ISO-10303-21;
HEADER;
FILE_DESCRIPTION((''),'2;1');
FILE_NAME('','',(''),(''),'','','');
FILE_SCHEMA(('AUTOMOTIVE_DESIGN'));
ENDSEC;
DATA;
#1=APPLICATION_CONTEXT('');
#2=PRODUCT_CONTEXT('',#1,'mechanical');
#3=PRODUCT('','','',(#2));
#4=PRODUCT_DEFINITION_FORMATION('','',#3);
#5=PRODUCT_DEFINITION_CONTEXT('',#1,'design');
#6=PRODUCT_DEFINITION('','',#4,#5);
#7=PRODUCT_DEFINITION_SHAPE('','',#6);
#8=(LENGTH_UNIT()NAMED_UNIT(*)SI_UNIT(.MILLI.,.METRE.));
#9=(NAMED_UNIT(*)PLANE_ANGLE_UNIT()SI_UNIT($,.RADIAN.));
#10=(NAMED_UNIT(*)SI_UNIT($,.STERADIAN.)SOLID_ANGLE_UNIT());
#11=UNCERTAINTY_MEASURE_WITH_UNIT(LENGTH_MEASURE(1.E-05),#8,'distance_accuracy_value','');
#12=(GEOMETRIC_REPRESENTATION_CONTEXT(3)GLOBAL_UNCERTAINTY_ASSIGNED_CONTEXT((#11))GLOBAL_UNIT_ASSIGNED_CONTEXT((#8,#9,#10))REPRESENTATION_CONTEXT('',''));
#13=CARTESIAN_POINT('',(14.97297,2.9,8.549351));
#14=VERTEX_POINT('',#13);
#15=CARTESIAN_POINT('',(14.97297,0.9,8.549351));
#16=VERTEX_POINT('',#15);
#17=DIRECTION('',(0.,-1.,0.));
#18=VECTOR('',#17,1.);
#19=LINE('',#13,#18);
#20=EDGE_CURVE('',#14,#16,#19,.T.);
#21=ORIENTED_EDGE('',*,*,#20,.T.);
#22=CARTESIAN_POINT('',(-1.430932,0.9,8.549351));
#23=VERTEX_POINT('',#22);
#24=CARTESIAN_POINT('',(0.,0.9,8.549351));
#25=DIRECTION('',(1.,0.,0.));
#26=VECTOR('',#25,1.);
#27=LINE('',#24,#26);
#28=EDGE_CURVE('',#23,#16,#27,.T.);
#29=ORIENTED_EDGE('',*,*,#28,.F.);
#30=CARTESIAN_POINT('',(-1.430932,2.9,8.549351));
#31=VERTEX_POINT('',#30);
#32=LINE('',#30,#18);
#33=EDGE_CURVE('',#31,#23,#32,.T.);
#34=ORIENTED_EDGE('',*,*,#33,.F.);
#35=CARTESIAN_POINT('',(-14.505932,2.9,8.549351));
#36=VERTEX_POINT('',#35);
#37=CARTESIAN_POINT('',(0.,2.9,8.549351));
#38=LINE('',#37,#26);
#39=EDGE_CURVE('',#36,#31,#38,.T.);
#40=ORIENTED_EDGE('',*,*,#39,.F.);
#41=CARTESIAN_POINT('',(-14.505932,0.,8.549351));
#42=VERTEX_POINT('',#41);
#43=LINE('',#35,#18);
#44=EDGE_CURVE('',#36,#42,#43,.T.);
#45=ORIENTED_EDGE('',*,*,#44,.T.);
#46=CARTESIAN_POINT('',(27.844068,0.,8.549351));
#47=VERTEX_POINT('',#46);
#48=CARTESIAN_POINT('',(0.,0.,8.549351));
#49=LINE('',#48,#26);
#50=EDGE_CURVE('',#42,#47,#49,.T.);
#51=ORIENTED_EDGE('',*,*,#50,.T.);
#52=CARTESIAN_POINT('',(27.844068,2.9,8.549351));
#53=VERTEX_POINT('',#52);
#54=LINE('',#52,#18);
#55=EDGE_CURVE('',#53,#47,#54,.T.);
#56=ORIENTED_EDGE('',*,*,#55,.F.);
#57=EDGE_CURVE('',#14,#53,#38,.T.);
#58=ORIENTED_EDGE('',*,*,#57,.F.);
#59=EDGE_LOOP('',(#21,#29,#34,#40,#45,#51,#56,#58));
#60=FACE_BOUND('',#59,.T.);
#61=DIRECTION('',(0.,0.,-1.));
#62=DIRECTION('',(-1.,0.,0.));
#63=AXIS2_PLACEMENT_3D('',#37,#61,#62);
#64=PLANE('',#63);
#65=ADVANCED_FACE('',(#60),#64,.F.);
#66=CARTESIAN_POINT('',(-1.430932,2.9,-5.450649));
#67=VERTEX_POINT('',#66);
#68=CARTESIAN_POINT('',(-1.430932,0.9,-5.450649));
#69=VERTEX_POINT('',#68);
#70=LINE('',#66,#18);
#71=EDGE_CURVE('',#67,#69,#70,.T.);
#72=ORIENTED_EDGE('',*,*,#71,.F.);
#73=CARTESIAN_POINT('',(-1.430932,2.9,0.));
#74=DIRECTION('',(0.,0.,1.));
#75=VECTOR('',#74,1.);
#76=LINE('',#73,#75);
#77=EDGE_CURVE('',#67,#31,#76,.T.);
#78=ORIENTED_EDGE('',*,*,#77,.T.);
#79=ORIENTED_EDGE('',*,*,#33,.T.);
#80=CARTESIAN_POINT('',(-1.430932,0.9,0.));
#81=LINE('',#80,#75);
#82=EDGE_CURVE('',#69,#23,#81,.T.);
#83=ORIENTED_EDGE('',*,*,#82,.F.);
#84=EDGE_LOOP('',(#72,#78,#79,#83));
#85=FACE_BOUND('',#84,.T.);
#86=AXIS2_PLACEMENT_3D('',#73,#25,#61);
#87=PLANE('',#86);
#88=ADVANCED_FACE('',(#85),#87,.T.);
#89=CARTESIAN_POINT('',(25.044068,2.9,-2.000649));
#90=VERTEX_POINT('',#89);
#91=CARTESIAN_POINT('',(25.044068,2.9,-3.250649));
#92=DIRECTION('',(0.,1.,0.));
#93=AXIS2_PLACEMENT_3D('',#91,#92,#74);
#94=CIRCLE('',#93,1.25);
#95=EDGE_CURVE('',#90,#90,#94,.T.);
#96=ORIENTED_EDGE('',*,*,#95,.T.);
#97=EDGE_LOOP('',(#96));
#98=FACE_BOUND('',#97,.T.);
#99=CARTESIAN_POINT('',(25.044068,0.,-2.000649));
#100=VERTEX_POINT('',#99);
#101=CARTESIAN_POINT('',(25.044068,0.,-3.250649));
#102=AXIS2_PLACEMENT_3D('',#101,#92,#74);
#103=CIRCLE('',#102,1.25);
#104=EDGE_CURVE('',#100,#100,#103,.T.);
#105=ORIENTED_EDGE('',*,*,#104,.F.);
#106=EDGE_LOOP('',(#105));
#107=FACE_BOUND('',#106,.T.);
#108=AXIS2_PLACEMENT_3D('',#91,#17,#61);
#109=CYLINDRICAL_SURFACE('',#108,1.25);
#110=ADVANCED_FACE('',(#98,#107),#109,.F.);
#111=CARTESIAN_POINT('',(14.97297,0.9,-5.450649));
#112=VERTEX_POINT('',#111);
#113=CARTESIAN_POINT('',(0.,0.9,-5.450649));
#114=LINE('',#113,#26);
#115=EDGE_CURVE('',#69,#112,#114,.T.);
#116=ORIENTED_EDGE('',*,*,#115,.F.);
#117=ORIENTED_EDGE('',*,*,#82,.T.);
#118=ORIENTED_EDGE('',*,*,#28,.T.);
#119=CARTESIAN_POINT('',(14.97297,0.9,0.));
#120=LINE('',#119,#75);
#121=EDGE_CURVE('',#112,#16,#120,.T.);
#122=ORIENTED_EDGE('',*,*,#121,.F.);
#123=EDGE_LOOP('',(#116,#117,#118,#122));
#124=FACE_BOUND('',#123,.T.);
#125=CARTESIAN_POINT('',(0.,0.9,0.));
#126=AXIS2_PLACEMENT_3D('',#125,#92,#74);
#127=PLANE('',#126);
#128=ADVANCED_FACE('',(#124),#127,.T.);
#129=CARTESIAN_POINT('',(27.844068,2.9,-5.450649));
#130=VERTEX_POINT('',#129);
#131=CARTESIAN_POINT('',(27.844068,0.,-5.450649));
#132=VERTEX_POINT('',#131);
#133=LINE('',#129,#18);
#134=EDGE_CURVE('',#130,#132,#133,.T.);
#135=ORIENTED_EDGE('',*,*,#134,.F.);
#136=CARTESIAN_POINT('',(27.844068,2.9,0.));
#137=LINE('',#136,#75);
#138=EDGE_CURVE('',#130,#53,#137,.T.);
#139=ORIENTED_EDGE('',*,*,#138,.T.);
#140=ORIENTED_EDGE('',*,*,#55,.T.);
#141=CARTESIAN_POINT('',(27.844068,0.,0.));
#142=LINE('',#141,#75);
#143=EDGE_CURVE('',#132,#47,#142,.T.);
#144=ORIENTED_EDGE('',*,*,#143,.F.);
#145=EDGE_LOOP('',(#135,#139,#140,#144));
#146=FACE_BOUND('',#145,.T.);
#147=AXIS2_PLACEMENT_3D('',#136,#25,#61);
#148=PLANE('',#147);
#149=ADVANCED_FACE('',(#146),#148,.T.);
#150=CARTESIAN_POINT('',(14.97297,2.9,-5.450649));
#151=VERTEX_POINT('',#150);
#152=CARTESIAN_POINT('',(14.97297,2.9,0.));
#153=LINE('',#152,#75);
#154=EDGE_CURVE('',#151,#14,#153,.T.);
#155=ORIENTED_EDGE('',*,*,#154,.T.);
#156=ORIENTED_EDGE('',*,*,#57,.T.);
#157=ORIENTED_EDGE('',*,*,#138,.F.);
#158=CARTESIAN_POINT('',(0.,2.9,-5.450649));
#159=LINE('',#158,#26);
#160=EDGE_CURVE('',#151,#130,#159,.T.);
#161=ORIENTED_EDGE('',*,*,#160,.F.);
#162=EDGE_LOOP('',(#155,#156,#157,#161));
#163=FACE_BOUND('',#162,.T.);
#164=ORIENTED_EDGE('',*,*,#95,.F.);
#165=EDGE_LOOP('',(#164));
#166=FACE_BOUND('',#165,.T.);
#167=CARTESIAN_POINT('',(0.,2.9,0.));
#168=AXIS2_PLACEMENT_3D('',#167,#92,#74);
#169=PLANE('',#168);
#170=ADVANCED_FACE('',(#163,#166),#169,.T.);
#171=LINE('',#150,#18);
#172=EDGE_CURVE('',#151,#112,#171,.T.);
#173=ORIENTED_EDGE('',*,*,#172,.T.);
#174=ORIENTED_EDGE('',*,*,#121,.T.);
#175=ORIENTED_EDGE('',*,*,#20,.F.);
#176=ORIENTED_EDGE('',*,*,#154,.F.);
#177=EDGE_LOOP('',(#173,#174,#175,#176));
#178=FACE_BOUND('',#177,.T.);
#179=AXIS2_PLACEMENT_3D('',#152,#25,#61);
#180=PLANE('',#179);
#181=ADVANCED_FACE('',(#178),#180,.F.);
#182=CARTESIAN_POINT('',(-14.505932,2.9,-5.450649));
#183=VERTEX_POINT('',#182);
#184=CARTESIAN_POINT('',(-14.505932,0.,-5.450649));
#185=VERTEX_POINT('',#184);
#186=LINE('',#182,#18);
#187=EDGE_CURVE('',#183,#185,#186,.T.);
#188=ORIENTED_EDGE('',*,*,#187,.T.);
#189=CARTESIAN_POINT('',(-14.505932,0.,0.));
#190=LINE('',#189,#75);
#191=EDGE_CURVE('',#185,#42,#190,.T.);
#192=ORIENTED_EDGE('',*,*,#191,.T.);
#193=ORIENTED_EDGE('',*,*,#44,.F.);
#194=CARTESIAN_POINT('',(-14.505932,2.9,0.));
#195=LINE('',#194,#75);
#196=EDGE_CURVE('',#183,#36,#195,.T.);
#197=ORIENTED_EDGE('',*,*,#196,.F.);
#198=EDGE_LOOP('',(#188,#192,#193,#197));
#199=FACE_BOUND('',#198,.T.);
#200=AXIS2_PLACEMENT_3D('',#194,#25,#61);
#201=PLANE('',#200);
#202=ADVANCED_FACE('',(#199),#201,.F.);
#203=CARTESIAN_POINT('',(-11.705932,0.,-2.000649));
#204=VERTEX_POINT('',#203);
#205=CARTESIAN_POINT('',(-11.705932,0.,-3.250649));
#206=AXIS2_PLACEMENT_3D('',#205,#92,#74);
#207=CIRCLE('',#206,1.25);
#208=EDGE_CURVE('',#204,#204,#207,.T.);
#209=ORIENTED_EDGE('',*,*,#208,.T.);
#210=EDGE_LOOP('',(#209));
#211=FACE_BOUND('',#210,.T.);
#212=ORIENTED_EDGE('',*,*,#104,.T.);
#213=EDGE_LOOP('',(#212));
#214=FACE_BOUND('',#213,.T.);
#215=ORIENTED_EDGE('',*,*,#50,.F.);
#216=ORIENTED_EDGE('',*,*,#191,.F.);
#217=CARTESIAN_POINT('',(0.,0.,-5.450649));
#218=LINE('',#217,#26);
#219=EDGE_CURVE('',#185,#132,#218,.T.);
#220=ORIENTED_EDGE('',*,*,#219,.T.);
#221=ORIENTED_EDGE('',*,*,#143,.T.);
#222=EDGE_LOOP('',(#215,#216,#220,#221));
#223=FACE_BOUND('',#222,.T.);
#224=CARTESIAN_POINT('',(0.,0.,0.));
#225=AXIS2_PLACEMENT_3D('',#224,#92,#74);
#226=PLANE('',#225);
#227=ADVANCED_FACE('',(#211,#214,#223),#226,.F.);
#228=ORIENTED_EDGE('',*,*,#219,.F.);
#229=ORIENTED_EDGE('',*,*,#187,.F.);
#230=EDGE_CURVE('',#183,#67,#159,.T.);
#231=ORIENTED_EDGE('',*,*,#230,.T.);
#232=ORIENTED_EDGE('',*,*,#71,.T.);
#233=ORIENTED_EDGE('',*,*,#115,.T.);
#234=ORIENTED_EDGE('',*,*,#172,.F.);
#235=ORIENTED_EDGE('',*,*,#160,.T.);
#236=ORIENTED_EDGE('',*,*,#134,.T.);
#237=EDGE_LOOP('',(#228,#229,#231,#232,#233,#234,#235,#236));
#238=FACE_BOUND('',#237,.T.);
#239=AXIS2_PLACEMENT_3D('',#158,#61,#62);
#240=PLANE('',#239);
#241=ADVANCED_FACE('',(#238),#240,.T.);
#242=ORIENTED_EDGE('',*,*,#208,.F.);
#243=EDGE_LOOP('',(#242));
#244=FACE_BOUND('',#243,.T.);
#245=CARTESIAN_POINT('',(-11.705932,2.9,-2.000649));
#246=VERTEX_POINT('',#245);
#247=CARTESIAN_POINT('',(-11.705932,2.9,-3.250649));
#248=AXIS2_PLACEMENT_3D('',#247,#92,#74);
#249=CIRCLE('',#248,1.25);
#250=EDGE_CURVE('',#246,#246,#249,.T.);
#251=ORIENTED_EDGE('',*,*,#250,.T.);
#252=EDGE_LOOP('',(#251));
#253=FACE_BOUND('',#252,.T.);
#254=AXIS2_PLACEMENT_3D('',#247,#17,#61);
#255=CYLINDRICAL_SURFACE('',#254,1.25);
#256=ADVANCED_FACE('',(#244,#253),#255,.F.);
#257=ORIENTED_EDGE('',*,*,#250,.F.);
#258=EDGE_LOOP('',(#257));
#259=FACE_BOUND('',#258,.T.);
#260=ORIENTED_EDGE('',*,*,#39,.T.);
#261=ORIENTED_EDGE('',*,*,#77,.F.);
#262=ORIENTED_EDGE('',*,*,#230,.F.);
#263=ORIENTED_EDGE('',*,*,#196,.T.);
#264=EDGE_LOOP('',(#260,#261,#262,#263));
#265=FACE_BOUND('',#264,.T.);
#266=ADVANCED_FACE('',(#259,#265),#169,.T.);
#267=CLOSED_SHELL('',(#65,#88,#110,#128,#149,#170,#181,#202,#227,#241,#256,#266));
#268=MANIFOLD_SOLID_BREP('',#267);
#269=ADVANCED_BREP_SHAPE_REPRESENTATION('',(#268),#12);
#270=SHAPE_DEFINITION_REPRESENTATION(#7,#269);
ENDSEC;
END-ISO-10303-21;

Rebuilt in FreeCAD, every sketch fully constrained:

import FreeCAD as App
import Part
import Sketcher
from FreeCAD import Vector


def add_polygon(sketch, points):
    """Adds a closed chain of lines whose ends are joined by coincident constraints."""
    first, n = sketch.GeometryCount, len(points)
    for a, b in zip(points, points[1:] + points[:1]):
        sketch.addGeometry(Part.LineSegment(App.Vector(*a, 0), App.Vector(*b, 0)), False)
    for i in range(n):
        sketch.addConstraint(Sketcher.Constraint("Coincident", first + i, 2, first + (i + 1) % n, 1))

doc = App.newDocument("Part")
params = doc.addObject("Spreadsheet::Sheet", "Params")
for row, (alias, value) in enumerate([
    ("sketch1_diameter", "2.5 mm"),
    ("sketch1_height", "14 mm"),
    ("pad1_length", "2.9 mm"),
    ("sketch2_diameter", "2.5 mm"),
    ("sketch2_height", "14 mm"),
    ("pad2_length", "2.9 mm"),
    ("sketch3_height", "14 mm"),
    ("pad3_length", "0.9 mm"),
], start=1):
    params.set(f"A{row}", alias)
    params.set(f"B{row}", "=" + value)
    params.setAlias(f"B{row}", alias)

body = doc.addObject("PartDesign::Body", "Body")

# Sketch on XZ plane
sketch1 = body.newObject("Sketcher::SketchObject", "Sketch")
sketch1.AttachmentSupport = (doc.getObject("XZ_Plane"), [""])
sketch1.MapMode = "FlatFace"
add_polygon(sketch1, [(-14.5, -5.5), (-14.5, 8.5), (-1.4, 8.5), (-1.4, -5.5)])  # lines 0-3
sketch1.addGeometry(Part.Circle(Vector(-11.7, -3.3, 0), Vector(0, 0, 1), 1.2), False)  # 4
sketch1.addConstraint(Sketcher.Constraint("Vertical", 0))
sketch1.addConstraint(Sketcher.Constraint("Horizontal", 1))
sketch1.addConstraint(Sketcher.Constraint("Vertical", 2))
sketch1.addConstraint(Sketcher.Constraint("Horizontal", 3))
sketch1.addConstraint(Sketcher.Constraint("Diameter", 4, 2.5))
sketch1.addConstraint(Sketcher.Constraint("DistanceY", 0, 1, 0, 2, 14.0))
sketch1.addConstraint(Sketcher.Constraint("DistanceX", 0, 2, 4, 3, 2.8))
sketch1.addConstraint(Sketcher.Constraint("DistanceY", 4, 3, 0, 2, 11.8))
sketch1.addConstraint(Sketcher.Constraint("DistanceX", 1, 1, 1, 2, 13.075))
sketch1.addConstraint(Sketcher.Constraint("DistanceY", 4, 3, -1, 1, 3.250649))
sketch1.addConstraint(Sketcher.Constraint("DistanceX", 4, 3, -1, 1, 11.705932))
sketch1.setExpression("Constraints[8]", "Params.sketch1_diameter")
sketch1.setExpression("Constraints[9]", "Params.sketch1_height")
pad1 = body.newObject("PartDesign::Pad", "Pad")
pad1.Profile = sketch1
pad1.setExpression("Length", "Params.pad1_length")
pad1.Reversed = True
body2 = doc.addObject("PartDesign::Body", "Body001")

# Sketch on XZ plane
sketch2 = body2.newObject("Sketcher::SketchObject", "Sketch001")
sketch2.AttachmentSupport = (doc.getObject("XZ_Plane001"), [""])
sketch2.MapMode = "FlatFace"
add_polygon(sketch2, [(15, -5.5), (15, 8.5), (27.8, 8.5), (27.8, -5.5)])  # lines 0-3
sketch2.addGeometry(Part.Circle(Vector(25, -3.3, 0), Vector(0, 0, 1), 1.2), False)  # 4
sketch2.addConstraint(Sketcher.Constraint("Vertical", 0))
sketch2.addConstraint(Sketcher.Constraint("Horizontal", 1))
sketch2.addConstraint(Sketcher.Constraint("Vertical", 2))
sketch2.addConstraint(Sketcher.Constraint("Horizontal", 3))
sketch2.addConstraint(Sketcher.Constraint("Diameter", 4, 2.5))
sketch2.addConstraint(Sketcher.Constraint("DistanceY", 0, 1, 0, 2, 14.0))
sketch2.addConstraint(Sketcher.Constraint("DistanceY", 4, 3, 0, 2, 11.8))
sketch2.addConstraint(Sketcher.Constraint("DistanceX", 4, 3, 1, 2, 2.8))
sketch2.addConstraint(Sketcher.Constraint("DistanceX", 1, 1, 1, 2, 12.871098))
sketch2.addConstraint(Sketcher.Constraint("DistanceY", 4, 3, -1, 1, 3.250649))
sketch2.addConstraint(Sketcher.Constraint("DistanceX", -1, 1, 0, 2, 14.97297))
sketch2.setExpression("Constraints[8]", "Params.sketch2_diameter")
sketch2.setExpression("Constraints[9]", "Params.sketch2_height")
pad2 = body2.newObject("PartDesign::Pad", "Pad001")
pad2.Profile = sketch2
pad2.setExpression("Length", "Params.pad2_length")
pad2.Reversed = True
body.AllowCompound = True
doc.recompute()

boolean = body.newObject("PartDesign::Boolean", "Boolean")
boolean.Type = "Fuse"
boolean.addObjects([body2])

# Sketch on XZ plane
sketch3 = body.newObject("Sketcher::SketchObject", "Sketch002")
sketch3.AttachmentSupport = (doc.getObject("XZ_Plane"), [""])
sketch3.MapMode = "FlatFace"
add_polygon(sketch3, [(-1, -5), (-1, 9), (15, 9), (15, -5)])  # lines 0-3
sketch3.addConstraint(Sketcher.Constraint("Vertical", 0))
sketch3.addConstraint(Sketcher.Constraint("Horizontal", 1))
sketch3.addConstraint(Sketcher.Constraint("Vertical", 2))
sketch3.addConstraint(Sketcher.Constraint("Horizontal", 3))
sketch3.addConstraint(Sketcher.Constraint("DistanceY", 0, 1, 0, 2, 14.0))
sketch3.addConstraint(Sketcher.Constraint("DistanceX", 1, 1, 1, 2, 16.403902))
sketch3.addConstraint(Sketcher.Constraint("DistanceY", -1, 1, 0, 2, 8.549351))
sketch3.addConstraint(Sketcher.Constraint("DistanceX", -1, 1, 1, 2, 14.97297))
sketch3.setExpression("Constraints[8]", "Params.sketch3_height")
pad3 = body.newObject("PartDesign::Pad", "Pad002")
pad3.Profile = sketch3
pad3.setExpression("Length", "Params.pad3_length")
pad3.Reversed = True

doc.recompute()
